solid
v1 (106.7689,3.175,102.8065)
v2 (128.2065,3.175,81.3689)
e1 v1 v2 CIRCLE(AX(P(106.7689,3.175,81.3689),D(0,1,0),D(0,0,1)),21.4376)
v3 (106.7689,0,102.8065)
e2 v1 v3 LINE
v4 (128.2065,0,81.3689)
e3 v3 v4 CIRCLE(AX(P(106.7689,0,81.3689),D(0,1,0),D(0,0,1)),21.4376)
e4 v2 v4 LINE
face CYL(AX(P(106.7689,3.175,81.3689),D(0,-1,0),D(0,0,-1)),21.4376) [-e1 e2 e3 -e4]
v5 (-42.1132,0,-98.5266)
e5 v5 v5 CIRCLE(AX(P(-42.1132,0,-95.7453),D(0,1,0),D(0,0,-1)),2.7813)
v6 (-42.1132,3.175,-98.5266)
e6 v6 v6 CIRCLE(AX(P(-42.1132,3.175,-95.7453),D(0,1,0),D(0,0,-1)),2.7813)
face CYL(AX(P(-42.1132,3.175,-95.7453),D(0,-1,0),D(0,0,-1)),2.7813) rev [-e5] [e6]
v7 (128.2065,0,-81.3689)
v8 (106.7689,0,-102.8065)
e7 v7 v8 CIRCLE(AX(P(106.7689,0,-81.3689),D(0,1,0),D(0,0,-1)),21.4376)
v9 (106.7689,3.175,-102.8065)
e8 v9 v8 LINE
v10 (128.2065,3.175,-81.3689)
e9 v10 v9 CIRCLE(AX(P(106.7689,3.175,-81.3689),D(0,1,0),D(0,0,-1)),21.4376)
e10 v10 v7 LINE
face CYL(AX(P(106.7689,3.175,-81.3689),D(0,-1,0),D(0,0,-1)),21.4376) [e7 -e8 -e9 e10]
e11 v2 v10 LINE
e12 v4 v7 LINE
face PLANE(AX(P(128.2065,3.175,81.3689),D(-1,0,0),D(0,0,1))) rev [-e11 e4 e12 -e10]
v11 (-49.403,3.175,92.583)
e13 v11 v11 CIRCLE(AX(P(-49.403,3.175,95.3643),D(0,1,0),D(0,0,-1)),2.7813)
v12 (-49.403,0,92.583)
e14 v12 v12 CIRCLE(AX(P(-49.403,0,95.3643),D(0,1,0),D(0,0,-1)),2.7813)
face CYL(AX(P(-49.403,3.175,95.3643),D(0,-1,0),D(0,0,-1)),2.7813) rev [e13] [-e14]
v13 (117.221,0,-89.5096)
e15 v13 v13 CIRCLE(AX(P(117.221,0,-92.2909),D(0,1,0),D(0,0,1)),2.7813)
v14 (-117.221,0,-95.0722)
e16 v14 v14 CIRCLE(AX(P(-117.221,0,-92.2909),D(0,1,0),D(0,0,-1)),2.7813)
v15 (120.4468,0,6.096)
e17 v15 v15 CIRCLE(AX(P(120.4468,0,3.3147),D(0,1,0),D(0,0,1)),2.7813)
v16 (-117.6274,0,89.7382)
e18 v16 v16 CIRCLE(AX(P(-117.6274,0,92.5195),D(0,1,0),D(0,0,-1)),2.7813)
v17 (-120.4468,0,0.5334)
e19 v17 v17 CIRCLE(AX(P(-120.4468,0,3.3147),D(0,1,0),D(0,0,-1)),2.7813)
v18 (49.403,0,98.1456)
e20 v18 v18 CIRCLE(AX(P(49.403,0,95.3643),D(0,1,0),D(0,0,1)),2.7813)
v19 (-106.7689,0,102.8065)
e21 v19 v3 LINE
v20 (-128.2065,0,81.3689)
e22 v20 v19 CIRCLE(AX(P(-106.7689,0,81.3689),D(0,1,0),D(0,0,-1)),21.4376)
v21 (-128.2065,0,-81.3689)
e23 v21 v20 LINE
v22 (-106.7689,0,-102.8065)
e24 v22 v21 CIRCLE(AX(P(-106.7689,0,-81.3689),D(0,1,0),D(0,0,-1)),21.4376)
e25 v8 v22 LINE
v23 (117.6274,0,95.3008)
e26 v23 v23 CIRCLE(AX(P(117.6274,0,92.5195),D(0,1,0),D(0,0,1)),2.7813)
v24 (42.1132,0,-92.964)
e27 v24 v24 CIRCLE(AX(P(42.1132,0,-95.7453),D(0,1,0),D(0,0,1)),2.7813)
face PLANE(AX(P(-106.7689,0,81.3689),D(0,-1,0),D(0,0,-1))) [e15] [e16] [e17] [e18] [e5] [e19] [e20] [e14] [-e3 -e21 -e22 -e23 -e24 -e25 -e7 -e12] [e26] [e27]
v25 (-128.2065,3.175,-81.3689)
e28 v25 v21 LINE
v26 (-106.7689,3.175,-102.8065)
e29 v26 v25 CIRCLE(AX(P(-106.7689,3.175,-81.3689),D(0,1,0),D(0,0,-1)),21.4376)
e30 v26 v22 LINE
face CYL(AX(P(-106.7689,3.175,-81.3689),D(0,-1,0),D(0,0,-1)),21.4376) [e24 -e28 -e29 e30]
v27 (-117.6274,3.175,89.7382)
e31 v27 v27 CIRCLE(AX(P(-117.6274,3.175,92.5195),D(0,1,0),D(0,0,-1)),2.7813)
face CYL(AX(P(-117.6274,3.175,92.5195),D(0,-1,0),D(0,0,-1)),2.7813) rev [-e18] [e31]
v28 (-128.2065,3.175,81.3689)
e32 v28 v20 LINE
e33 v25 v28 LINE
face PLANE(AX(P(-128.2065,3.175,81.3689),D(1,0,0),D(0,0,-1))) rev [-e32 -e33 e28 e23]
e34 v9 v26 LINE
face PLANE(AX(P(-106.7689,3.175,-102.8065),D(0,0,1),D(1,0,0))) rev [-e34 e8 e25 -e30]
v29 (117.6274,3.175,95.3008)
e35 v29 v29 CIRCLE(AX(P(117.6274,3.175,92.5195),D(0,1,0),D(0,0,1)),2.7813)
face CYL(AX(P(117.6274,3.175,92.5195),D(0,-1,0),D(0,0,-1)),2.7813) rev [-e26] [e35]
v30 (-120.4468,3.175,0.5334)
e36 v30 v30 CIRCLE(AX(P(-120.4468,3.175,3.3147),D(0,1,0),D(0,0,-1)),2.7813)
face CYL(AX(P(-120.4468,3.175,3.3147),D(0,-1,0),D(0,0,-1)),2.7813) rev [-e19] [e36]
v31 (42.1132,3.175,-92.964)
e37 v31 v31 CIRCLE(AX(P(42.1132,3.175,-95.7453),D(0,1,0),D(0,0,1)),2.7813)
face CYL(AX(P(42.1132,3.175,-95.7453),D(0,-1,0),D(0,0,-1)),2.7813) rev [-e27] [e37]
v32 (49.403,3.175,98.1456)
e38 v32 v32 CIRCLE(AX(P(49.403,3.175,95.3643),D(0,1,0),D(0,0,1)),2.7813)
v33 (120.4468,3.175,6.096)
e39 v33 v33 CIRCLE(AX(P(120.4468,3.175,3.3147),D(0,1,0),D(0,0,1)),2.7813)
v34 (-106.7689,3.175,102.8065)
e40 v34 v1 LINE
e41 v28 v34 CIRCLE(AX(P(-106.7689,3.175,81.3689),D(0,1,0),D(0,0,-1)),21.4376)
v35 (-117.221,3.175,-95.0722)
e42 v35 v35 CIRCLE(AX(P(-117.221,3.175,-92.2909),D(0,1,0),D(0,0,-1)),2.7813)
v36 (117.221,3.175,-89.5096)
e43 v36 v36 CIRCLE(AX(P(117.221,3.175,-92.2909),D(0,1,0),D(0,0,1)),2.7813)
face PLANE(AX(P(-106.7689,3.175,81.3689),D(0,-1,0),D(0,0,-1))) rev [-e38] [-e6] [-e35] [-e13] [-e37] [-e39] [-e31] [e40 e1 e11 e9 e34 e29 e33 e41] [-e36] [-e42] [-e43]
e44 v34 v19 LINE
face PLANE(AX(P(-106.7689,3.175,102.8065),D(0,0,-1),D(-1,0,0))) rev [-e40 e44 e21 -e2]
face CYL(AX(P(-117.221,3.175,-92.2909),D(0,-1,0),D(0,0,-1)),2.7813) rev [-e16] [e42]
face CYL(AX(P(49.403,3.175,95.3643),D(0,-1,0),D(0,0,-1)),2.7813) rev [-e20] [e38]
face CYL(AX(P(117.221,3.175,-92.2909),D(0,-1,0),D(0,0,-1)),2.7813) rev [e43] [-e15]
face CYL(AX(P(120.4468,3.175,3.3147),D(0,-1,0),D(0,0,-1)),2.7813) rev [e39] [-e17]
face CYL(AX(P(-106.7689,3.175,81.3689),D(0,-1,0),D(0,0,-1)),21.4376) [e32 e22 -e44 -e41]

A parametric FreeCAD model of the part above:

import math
import FreeCAD as App
import Part
import Sketcher
from FreeCAD import Vector
Q = App.Units.Quantity

doc = App.newDocument("Part")
body = doc.addObject("PartDesign::Body", "Body")

# Sketch on XZ plane
sketch1 = body.newObject("Sketcher::SketchObject", "Sketch")
sketch1.AttachmentSupport = (doc.getObject("XZ_Plane"), [""])
sketch1.MapMode = "FlatFace"
sketch1.addGeometry([
    Part.LineSegment(Vector(-106.7689, 102.8065, 0), Vector(106.7689, 102.8065, 0)),  # 0
    Part.ArcOfCircle(Part.Circle(Vector(106.7689, 81.3689, 0), Vector(0, 0, 1), 21.4376), math.radians(0), math.radians(90)),  # 1
    Part.LineSegment(Vector(128.2065, 81.3689, 0), Vector(128.2065, -81.3689, 0)),  # 2
    Part.ArcOfCircle(Part.Circle(Vector(106.7689, -81.3689, 0), Vector(0, 0, 1), 21.4376), math.radians(-90), math.radians(0)),  # 3
    Part.LineSegment(Vector(106.7689, -102.8065, 0), Vector(-106.7689, -102.8065, 0)),  # 4
    Part.ArcOfCircle(Part.Circle(Vector(-106.7689, -81.3689, 0), Vector(0, 0, 1), 21.4376), math.radians(-180), math.radians(-90)),  # 5
    Part.LineSegment(Vector(-128.2065, -81.3689, 0), Vector(-128.2065, 81.3689, 0)),  # 6
    Part.ArcOfCircle(Part.Circle(Vector(-106.7689, 81.3689, 0), Vector(0, 0, 1), 21.4376), math.radians(90), math.radians(180)),  # 7
    Part.Circle(Vector(-117.6274, 92.5195, 0), Vector(0, 0, 1), 2.7813),  # 8
    Part.Circle(Vector(-49.403, 95.3643, 0), Vector(0, 0, 1), 2.7813),  # 9
    Part.Circle(Vector(-120.4468, 3.3147, 0), Vector(0, 0, 1), 2.7813),  # 10
    Part.Circle(Vector(49.403, 95.3643, 0), Vector(0, 0, 1), 2.7813),  # 11
    Part.Circle(Vector(117.6274, 92.5195, 0), Vector(0, 0, 1), 2.7813),  # 12
    Part.Circle(Vector(120.4468, 3.3147, 0), Vector(0, 0, 1), 2.7813),  # 13
    Part.Circle(Vector(-117.221, -92.2909, 0), Vector(0, 0, 1), 2.7813),  # 14
    Part.Circle(Vector(-42.1132, -95.7453, 0), Vector(0, 0, 1), 2.7813),  # 15
    Part.Circle(Vector(42.1132, -95.7453, 0), Vector(0, 0, 1), 2.7813),  # 16
    Part.Circle(Vector(117.221, -92.2909, 0), Vector(0, 0, 1), 2.7813),  # 17
], False)
sketch1.addConstraint([
    Sketcher.Constraint("Tangent", 0, 2, 1, 2),
    Sketcher.Constraint("Tangent", 1, 1, 2, 1),
    Sketcher.Constraint("Tangent", 2, 2, 3, 2),
    Sketcher.Constraint("Tangent", 3, 1, 4, 1),
    Sketcher.Constraint("Tangent", 4, 2, 5, 2),
    Sketcher.Constraint("Tangent", 5, 1, 6, 1),
    Sketcher.Constraint("Tangent", 6, 2, 7, 2),
    Sketcher.Constraint("Tangent", 7, 1, 0, 1),
    Sketcher.Constraint("Horizontal", 0),
    Sketcher.Constraint("Vertical", 2),
    Sketcher.Constraint("Horizontal", 4),
    Sketcher.Constraint("Vertical", 6),
    Sketcher.Constraint("Equal", 1, 3),
    Sketcher.Constraint("Equal", 3, 5),
    Sketcher.Constraint("Equal", 5, 7),
    Sketcher.Constraint("Equal", 8, 9),
    Sketcher.Constraint("Equal", 9, 10),
    Sketcher.Constraint("Equal", 10, 11),
    Sketcher.Constraint("Equal", 11, 12),
    Sketcher.Constraint("Equal", 12, 13),
    Sketcher.Constraint("Equal", 13, 14),
    Sketcher.Constraint("Equal", 14, 15),
    Sketcher.Constraint("Equal", 15, 16),
    Sketcher.Constraint("Equal", 16, 17),
    Sketcher.Constraint("Symmetric", 1, 3, 5, 3, -1, 1),
    Sketcher.Constraint("Symmetric", 9, 3, 11, 3, -2),
    Sketcher.Constraint("Symmetric", 8, 3, 12, 3, -2),
    Sketcher.Constraint("Symmetric", 10, 3, 13, 3, -2),
    Sketcher.Constraint("Symmetric", 15, 3, 16, 3, -2),
    Sketcher.Constraint("Symmetric", 14, 3, 17, 3, -2),
    Sketcher.Constraint("Diameter", 8, Q("0.219 in")),
    Sketcher.Constraint("Radius", 1, Q("0.844 in")),
    Sketcher.Constraint("DistanceY", 15, 3, 10, 3, Q("3.9 in")),
    Sketcher.Constraint("DistanceX", 0, 1, 0, 2, Q("8.407 in")),
    Sketcher.Constraint("DistanceY", 2, 2, 2, 1, Q("6.407 in")),
    Sketcher.Constraint("DistanceX", 9, 3, 11, 3, Q("3.89 in")),
    Sketcher.Constraint("DistanceY", 14, 3, 5, 3, Q("0.43 in")),
    Sketcher.Constraint("DistanceX", 14, 3, 9, 3, Q("2.67 in")),
    Sketcher.Constraint("DistanceX", 8, 3, -1, 1, Q("4.631 in")),
    Sketcher.Constraint("DistanceX", 10, 3, -1, 1, Q("4.742 in")),
    Sketcher.Constraint("DistanceX", 15, 3, -1, 1, Q("1.658 in")),
    Sketcher.Constraint("DistanceY", 7, 3, 8, 3, Q("0.439 in")),
    Sketcher.Constraint("DistanceY", 7, 3, 9, 3, Q("0.551 in")),
    Sketcher.Constraint("DistanceY", 10, 3, 7, 3, Q("3.073 in")),
])
pad1 = body.newObject("PartDesign::Pad", "Pad")
pad1.Profile = sketch1
pad1.Length = Q("0.125 in")
pad1.Reversed = True

doc.recompute()
